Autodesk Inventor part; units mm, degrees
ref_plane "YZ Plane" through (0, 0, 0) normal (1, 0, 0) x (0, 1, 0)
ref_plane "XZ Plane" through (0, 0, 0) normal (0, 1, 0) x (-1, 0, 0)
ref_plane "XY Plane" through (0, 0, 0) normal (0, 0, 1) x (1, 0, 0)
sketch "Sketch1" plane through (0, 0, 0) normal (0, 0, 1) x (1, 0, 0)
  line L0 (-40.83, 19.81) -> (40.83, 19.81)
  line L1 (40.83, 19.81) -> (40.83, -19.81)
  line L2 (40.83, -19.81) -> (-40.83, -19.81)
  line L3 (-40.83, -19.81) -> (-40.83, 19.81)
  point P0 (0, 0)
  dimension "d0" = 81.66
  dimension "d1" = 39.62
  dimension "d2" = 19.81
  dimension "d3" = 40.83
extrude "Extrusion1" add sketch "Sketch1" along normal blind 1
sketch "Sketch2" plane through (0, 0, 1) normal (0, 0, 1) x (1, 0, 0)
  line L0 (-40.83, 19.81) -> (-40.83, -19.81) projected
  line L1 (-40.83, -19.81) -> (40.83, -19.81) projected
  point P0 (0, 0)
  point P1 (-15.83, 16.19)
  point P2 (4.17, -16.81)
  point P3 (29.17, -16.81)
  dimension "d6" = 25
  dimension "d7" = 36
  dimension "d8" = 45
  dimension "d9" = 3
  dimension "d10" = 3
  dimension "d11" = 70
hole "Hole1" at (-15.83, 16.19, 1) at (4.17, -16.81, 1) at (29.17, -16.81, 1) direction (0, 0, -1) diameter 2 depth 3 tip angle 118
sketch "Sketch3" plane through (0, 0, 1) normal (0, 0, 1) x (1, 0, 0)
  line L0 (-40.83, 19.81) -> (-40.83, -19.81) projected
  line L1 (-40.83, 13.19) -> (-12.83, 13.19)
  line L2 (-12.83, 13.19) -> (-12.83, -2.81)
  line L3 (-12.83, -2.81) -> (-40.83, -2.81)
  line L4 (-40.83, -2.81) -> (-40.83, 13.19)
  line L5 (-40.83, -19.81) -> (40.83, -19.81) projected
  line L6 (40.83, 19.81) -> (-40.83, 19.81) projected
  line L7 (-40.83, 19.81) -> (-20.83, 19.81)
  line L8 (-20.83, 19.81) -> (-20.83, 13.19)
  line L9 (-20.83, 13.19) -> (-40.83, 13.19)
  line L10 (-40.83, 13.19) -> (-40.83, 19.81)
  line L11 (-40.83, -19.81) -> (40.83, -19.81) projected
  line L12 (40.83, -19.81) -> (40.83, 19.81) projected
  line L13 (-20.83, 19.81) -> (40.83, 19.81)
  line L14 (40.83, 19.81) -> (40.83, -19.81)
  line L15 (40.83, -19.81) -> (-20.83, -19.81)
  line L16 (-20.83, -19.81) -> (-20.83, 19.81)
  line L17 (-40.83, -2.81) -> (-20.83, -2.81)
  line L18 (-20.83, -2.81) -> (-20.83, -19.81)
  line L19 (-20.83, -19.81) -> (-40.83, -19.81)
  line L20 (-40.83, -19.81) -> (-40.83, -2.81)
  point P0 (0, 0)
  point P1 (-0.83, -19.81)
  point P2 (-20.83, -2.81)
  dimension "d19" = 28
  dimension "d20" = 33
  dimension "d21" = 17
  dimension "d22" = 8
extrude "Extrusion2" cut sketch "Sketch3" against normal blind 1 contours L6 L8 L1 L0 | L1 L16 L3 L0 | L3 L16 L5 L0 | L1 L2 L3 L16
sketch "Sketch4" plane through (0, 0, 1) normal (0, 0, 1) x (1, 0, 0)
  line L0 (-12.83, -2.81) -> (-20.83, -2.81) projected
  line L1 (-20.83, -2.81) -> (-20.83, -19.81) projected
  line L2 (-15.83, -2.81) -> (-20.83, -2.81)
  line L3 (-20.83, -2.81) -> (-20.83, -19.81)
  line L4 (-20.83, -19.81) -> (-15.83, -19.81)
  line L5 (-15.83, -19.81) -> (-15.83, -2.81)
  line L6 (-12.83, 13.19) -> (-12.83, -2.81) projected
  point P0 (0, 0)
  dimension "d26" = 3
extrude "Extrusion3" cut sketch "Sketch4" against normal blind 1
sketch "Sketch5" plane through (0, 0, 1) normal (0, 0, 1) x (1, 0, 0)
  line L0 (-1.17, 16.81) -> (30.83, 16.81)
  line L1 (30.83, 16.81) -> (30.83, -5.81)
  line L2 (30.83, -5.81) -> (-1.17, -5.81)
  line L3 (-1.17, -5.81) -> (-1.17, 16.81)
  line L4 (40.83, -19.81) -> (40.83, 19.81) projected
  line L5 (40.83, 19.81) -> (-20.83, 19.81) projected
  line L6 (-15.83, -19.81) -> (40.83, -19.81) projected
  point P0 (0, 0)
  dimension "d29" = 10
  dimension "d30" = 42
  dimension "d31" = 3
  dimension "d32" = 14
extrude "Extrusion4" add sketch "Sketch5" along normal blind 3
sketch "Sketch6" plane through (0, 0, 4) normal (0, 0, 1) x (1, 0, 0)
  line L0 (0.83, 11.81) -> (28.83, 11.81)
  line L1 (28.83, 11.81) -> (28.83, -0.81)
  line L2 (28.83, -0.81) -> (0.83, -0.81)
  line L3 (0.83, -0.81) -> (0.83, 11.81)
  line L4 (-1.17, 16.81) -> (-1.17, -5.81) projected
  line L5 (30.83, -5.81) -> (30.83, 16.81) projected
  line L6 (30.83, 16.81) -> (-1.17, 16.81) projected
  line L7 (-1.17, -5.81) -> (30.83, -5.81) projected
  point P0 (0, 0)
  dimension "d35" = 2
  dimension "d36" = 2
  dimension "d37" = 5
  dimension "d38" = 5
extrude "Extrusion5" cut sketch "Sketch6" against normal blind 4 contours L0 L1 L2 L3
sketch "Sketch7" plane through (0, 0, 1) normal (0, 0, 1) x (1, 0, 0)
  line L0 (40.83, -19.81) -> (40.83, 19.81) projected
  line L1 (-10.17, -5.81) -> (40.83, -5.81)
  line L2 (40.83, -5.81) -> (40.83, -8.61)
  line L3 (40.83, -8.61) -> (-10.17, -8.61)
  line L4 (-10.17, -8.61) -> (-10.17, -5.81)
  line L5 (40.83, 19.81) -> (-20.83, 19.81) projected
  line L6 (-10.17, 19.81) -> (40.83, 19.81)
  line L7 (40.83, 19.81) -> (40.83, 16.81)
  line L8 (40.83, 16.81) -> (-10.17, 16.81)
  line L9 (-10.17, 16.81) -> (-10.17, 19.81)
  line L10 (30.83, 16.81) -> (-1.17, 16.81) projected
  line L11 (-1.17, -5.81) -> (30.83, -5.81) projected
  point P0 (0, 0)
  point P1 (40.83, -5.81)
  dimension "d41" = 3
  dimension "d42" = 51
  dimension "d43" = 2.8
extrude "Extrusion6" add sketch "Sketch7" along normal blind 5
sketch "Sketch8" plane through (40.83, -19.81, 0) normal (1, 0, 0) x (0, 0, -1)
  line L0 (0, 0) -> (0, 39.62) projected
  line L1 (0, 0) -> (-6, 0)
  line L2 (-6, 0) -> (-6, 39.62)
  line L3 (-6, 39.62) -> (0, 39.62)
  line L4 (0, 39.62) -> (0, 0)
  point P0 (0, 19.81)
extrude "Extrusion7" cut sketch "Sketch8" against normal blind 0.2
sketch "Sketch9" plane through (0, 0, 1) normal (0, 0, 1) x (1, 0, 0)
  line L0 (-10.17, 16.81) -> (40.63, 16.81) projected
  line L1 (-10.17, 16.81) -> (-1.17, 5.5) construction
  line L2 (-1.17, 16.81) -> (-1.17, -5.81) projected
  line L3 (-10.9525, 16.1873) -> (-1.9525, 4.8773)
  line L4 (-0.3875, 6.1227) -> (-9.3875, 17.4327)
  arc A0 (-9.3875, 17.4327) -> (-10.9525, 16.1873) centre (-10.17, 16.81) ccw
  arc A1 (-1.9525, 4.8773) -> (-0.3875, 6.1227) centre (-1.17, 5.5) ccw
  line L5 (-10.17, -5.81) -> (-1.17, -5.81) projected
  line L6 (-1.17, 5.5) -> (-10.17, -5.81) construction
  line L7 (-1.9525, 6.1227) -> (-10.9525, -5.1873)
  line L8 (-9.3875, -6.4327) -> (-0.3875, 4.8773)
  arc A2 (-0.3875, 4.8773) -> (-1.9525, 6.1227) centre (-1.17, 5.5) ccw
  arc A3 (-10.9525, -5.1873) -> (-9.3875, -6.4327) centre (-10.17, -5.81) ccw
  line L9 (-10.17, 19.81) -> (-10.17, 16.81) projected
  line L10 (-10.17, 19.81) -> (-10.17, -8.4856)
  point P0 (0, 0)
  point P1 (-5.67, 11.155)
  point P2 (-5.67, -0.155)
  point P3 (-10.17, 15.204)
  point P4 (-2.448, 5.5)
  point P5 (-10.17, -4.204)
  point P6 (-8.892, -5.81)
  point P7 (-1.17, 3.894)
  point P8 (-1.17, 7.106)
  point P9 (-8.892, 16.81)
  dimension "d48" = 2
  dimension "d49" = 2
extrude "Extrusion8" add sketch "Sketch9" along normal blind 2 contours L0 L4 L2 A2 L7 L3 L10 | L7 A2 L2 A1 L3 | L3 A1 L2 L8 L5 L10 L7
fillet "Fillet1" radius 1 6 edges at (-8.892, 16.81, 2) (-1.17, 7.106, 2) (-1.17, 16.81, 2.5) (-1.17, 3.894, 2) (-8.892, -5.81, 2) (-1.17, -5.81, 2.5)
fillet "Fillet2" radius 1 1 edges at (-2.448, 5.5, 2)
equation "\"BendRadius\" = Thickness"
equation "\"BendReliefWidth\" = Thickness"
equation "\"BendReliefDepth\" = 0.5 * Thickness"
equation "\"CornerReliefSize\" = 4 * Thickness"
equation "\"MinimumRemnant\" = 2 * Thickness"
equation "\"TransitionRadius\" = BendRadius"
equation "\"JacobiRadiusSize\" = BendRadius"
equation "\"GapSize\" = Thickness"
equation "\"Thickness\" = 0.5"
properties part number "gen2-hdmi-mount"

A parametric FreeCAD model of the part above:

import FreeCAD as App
import Part
import Sketcher


def edges_at(feature, points):
    """Names of the edges that pass closest to the given points."""
    edges = feature.Shape.Edges
    near = lambda p: min(range(len(edges)), key=lambda i: edges[i].distToShape(Part.Vertex(*p))[0])
    return sorted({f"Edge{near(p) + 1}" for p in points})

doc = App.newDocument("Part")
body = doc.addObject("PartDesign::Body", "Body")

sketch1 = body.newObject("Sketcher::SketchObject", "Sketch")
sketch1.AttachmentSupport = (doc.getObject("XY_Plane"), [""])
sketch1.MapMode = "FlatFace"
sketch1.addGeometry([
    Part.LineSegment(App.Vector(41, 20, 0), App.Vector(-41, 20, 0)),
    Part.LineSegment(App.Vector(-41, 20, 0), App.Vector(-41, -20, 0)),
    Part.LineSegment(App.Vector(-41, -20, 0), App.Vector(41, -20, 0)),
    Part.LineSegment(App.Vector(41, -20, 0), App.Vector(41, 20, 0)),
], False)
sketch1.addConstraint([
    Sketcher.Constraint("Coincident", 0, 2, 1, 1),
    Sketcher.Constraint("Coincident", 1, 2, 2, 1),
    Sketcher.Constraint("Coincident", 2, 2, 3, 1),
    Sketcher.Constraint("Coincident", 3, 2, 0, 1),
    Sketcher.Constraint("Horizontal", 0),
    Sketcher.Constraint("Vertical", 1),
    Sketcher.Constraint("Horizontal", 2),
    Sketcher.Constraint("Vertical", 3),
    Sketcher.Constraint("Symmetric", 0, 2, 2, 2, -1, 1),
    Sketcher.Constraint("DistanceX", 0, 2, 0, 1, 81.66),
    Sketcher.Constraint("DistanceY", 1, 2, 1, 1, 39.62),
])
pad1 = body.newObject("PartDesign::Pad", "Pad")
pad1.Profile = sketch1
pad1.Length = 1

sketch2 = body.newObject("Sketcher::SketchObject", "Sketch001")
sketch2.AttachmentSupport = (doc.getObject("XY_Plane"), [""])
sketch2.MapMode = "FlatFace"
sketch2.AttachmentOffset = App.Placement(App.Vector(0, 0, 1), App.Rotation())
sketch2.addGeometry([
    Part.Circle(App.Vector(-15.8, 16.2, 0), App.Vector(0, 0, 1), 1),
    Part.Circle(App.Vector(4.2, -16.8, 0), App.Vector(0, 0, 1), 1),
    Part.Circle(App.Vector(29.2, -16.8, 0), App.Vector(0, 0, 1), 1),
], False)
sketch2.addConstraint([
    Sketcher.Constraint("Equal", 0, 1),
    Sketcher.Constraint("Equal", 1, 2),
    Sketcher.Constraint("Horizontal", 1, 3, 2, 3),
    Sketcher.Constraint("Diameter", 0, 2.0),
    Sketcher.Constraint("DistanceX", 0, 3, 1, 3, 20.0),
    Sketcher.Constraint("DistanceY", 1, 3, 0, 3, 33.0),
    Sketcher.Constraint("DistanceX", 1, 3, 2, 3, 25.0),
    Sketcher.Constraint("DistanceX", 0, 3, -1, 1, 15.83),
    Sketcher.Constraint("DistanceY", -1, 1, 0, 3, 16.19),
])
doc.recompute()
hole = body.newObject("PartDesign::Hole", "Hole")
hole.Profile = sketch2
hole.ThreadType = "None"
hole.Diameter = 2
hole.DepthType = "Dimension"
hole.Depth = 3
hole.DrillPoint = "Angled"
hole.DrillPointAngle = 118

sketch3 = body.newObject("Sketcher::SketchObject", "Sketch002")
sketch3.AttachmentSupport = (doc.getObject("XY_Plane"), [""])
sketch3.MapMode = "FlatFace"
sketch3.AttachmentOffset = App.Placement(App.Vector(0, 0, 1), App.Rotation())
sketch3.addGeometry([
    Part.LineSegment(App.Vector(-21, 20, 0), App.Vector(-41, 20, 0)),
    Part.LineSegment(App.Vector(-41, 20, 0), App.Vector(-41, -20, 0)),
    Part.LineSegment(App.Vector(-41, -20, 0), App.Vector(-21, -20, 0)),
    Part.LineSegment(App.Vector(-21, -20, 0), App.Vector(-21, -3, 0)),
    Part.LineSegment(App.Vector(-21, -3, 0), App.Vector(-13, -3, 0)),
    Part.LineSegment(App.Vector(-13, -3, 0), App.Vector(-13, 13, 0)),
    Part.LineSegment(App.Vector(-13, 13, 0), App.Vector(-21, 13, 0)),
    Part.LineSegment(App.Vector(-21, 13, 0), App.Vector(-21, 20, 0)),
], False)
sketch3.addConstraint([
    Sketcher.Constraint("Coincident", 0, 2, 1, 1),
    Sketcher.Constraint("Coincident", 1, 2, 2, 1),
    Sketcher.Constraint("Coincident", 2, 2, 3, 1),
    Sketcher.Constraint("Coincident", 3, 2, 4, 1),
    Sketcher.Constraint("Coincident", 4, 2, 5, 1),
    Sketcher.Constraint("Coincident", 5, 2, 6, 1),
    Sketcher.Constraint("Coincident", 6, 2, 7, 1),
    Sketcher.Constraint("Coincident", 7, 2, 0, 1),
    Sketcher.Constraint("Horizontal", 0),
    Sketcher.Constraint("Vertical", 1),
    Sketcher.Constraint("Horizontal", 2),
    Sketcher.Constraint("Vertical", 3),
    Sketcher.Constraint("Horizontal", 4),
    Sketcher.Constraint("Vertical", 5),
    Sketcher.Constraint("Horizontal", 6),
    Sketcher.Constraint("Vertical", 7),
    Sketcher.Constraint("Symmetric", 2, 2, 7, 2, -1),
    Sketcher.Constraint("DistanceX", 4, 1, 4, 2, 8.0),
    Sketcher.Constraint("DistanceY", 3, 1, 3, 2, 17.0),
    Sketcher.Constraint("DistanceX", 1, 2, 4, 2, 28.0),
    Sketcher.Constraint("DistanceY", 2, 2, 5, 2, 33.0),
    Sketcher.Constraint("DistanceY", 1, 2, 1, 1, 39.62),
    Sketcher.Constraint("DistanceX", 0, 2, -1, 1, 40.83),
])
pocket1 = body.newObject("PartDesign::Pocket", "Pocket")
pocket1.Profile = sketch3
pocket1.Length = 1

sketch4 = body.newObject("Sketcher::SketchObject", "Sketch003")
sketch4.AttachmentSupport = (doc.getObject("XY_Plane"), [""])
sketch4.MapMode = "FlatFace"
sketch4.AttachmentOffset = App.Placement(App.Vector(0, 0, 1), App.Rotation())
sketch4.addGeometry([
    Part.LineSegment(App.Vector(-15.8, -19.8, 0), App.Vector(-15.8, -2.8, 0)),
    Part.LineSegment(App.Vector(-15.8, -2.8, 0), App.Vector(-20.8, -2.8, 0)),
    Part.LineSegment(App.Vector(-20.8, -2.8, 0), App.Vector(-20.8, -19.8, 0)),
    Part.LineSegment(App.Vector(-20.8, -19.8, 0), App.Vector(-15.8, -19.8, 0)),
], False)
sketch4.addConstraint([
    Sketcher.Constraint("Coincident", 0, 2, 1, 1),
    Sketcher.Constraint("Coincident", 1, 2, 2, 1),
    Sketcher.Constraint("Coincident", 2, 2, 3, 1),
    Sketcher.Constraint("Coincident", 3, 2, 0, 1),
    Sketcher.Constraint("Vertical", 0),
    Sketcher.Constraint("Horizontal", 1),
    Sketcher.Constraint("Vertical", 2),
    Sketcher.Constraint("Horizontal", 3),
    Sketcher.Constraint("DistanceX", 1, 2, 1, 1, 5.0),
    Sketcher.Constraint("DistanceY", 0, 1, 0, 2, 17.0),
    Sketcher.Constraint("DistanceX", 0, 2, -1, 1, 15.83),
    Sketcher.Constraint("DistanceY", 0, 2, -1, 1, 2.81),
])
pocket2 = body.newObject("PartDesign::Pocket", "Pocket001")
pocket2.Profile = sketch4
pocket2.Length = 1

sketch5 = body.newObject("Sketcher::SketchObject", "Sketch004")
sketch5.AttachmentSupport = (doc.getObject("XY_Plane"), [""])
sketch5.MapMode = "FlatFace"
sketch5.AttachmentOffset = App.Placement(App.Vector(0, 0, 1), App.Rotation())
sketch5.addGeometry([
    Part.LineSegment(App.Vector(31, 17, 0), App.Vector(-1, 17, 0)),
    Part.LineSegment(App.Vector(-1, 17, 0), App.Vector(-1, -6, 0)),
    Part.LineSegment(App.Vector(-1, -6, 0), App.Vector(31, -6, 0)),
    Part.LineSegment(App.Vector(31, -6, 0), App.Vector(31, 17, 0)),
], False)
sketch5.addConstraint([
    Sketcher.Constraint("Coincident", 0, 2, 1, 1),
    Sketcher.Constraint("Coincident", 1, 2, 2, 1),
    Sketcher.Constraint("Coincident", 2, 2, 3, 1),
    Sketcher.Constraint("Coincident", 3, 2, 0, 1),
    Sketcher.Constraint("Horizontal", 0),
    Sketcher.Constraint("Vertical", 1),
    Sketcher.Constraint("Horizontal", 2),
    Sketcher.Constraint("Vertical", 3),
    Sketcher.Constraint("DistanceX", 0, 2, 0, 1, 32.0),
    Sketcher.Constraint("DistanceY", 1, 2, 1, 1, 22.62),
    Sketcher.Constraint("DistanceX", 0, 2, -1, 1, 1.17),
    Sketcher.Constraint("DistanceY", -1, 1, 0, 2, 16.81),
])
pad2 = body.newObject("PartDesign::Pad", "Pad001")
pad2.Profile = sketch5
pad2.Length = 3

sketch6 = body.newObject("Sketcher::SketchObject", "Sketch005")
sketch6.AttachmentSupport = (doc.getObject("XY_Plane"), [""])
sketch6.MapMode = "FlatFace"
sketch6.AttachmentOffset = App.Placement(App.Vector(0, 0, 4), App.Rotation())
sketch6.addGeometry([
    Part.LineSegment(App.Vector(29, 12, 0), App.Vector(1, 12, 0)),
    Part.LineSegment(App.Vector(1, 12, 0), App.Vector(1, -1, 0)),
    Part.LineSegment(App.Vector(1, -1, 0), App.Vector(29, -1, 0)),
    Part.LineSegment(App.Vector(29, -1, 0), App.Vector(29, 12, 0)),
], False)
sketch6.addConstraint([
    Sketcher.Constraint("Coincident", 0, 2, 1, 1),
    Sketcher.Constraint("Coincident", 1, 2, 2, 1),
    Sketcher.Constraint("Coincident", 2, 2, 3, 1),
    Sketcher.Constraint("Coincident", 3, 2, 0, 1),
    Sketcher.Constraint("Horizontal", 0),
    Sketcher.Constraint("Vertical", 1),
    Sketcher.Constraint("Horizontal", 2),
    Sketcher.Constraint("Vertical", 3),
    Sketcher.Constraint("DistanceX", 0, 2, 0, 1, 28.0),
    Sketcher.Constraint("DistanceY", 1, 2, 1, 1, 12.62),
    Sketcher.Constraint("DistanceX", -1, 1, 0, 2, 0.83),
    Sketcher.Constraint("DistanceY", -1, 1, 0, 2, 11.81),
])
pocket3 = body.newObject("PartDesign::Pocket", "Pocket002")
pocket3.Profile = sketch6
pocket3.Length = 4

sketch7 = body.newObject("Sketcher::SketchObject", "Sketch006")
sketch7.AttachmentSupport = (doc.getObject("XY_Plane"), [""])
sketch7.MapMode = "FlatFace"
sketch7.AttachmentOffset = App.Placement(App.Vector(0, 0, 1), App.Rotation())
sketch7.addGeometry([
    Part.LineSegment(App.Vector(-10.2, -8.6, 0), App.Vector(40.8, -8.6, 0)),
    Part.LineSegment(App.Vector(40.8, -8.6, 0), App.Vector(40.8, -5.8, 0)),
    Part.LineSegment(App.Vector(40.8, -5.8, 0), App.Vector(-10.2, -5.8, 0)),
    Part.LineSegment(App.Vector(-10.2, -5.8, 0), App.Vector(-10.2, -8.6, 0)),
    Part.LineSegment(App.Vector(-10.2, 16.8, 0), App.Vector(40.8, 16.8, 0)),
    Part.LineSegment(App.Vector(40.8, 16.8, 0), App.Vector(40.8, 19.8, 0)),
    Part.LineSegment(App.Vector(40.8, 19.8, 0), App.Vector(-10.2, 19.8, 0)),
    Part.LineSegment(App.Vector(-10.2, 19.8, 0), App.Vector(-10.2, 16.8, 0)),
], False)
sketch7.addConstraint([
    Sketcher.Constraint("Coincident", 0, 2, 1, 1),
    Sketcher.Constraint("Coincident", 1, 2, 2, 1),
    Sketcher.Constraint("Coincident", 2, 2, 3, 1),
    Sketcher.Constraint("Coincident", 3, 2, 0, 1),
    Sketcher.Constraint("Coincident", 4, 2, 5, 1),
    Sketcher.Constraint("Coincident", 5, 2, 6, 1),
    Sketcher.Constraint("Coincident", 6, 2, 7, 1),
    Sketcher.Constraint("Coincident", 7, 2, 4, 1),
    Sketcher.Constraint("Horizontal", 0),
    Sketcher.Constraint("Vertical", 1),
    Sketcher.Constraint("Horizontal", 2),
    Sketcher.Constraint("Vertical", 3),
    Sketcher.Constraint("Horizontal", 4),
    Sketcher.Constraint("Vertical", 5),
    Sketcher.Constraint("Horizontal", 6),
    Sketcher.Constraint("Vertical", 7),
    Sketcher.Constraint("Vertical", 1, 2, 4, 2),
    Sketcher.Constraint("Vertical", 3, 2, 6, 2),
    Sketcher.Constraint("DistanceX", 0, 1, 0, 2, 51.0),
    Sketcher.Constraint("DistanceY", 5, 1, 5, 2, 3.0),
    Sketcher.Constraint("DistanceY", 1, 1, 1, 2, 2.8),
    Sketcher.Constraint("DistanceX", -1, 1, 0, 2, 40.83),
    Sketcher.Constraint("DistanceY", 0, 2, -1, 1, 8.61),
    Sketcher.Constraint("DistanceY", -1, 1, 4, 2, 16.81),
])
pad3 = body.newObject("PartDesign::Pad", "Pad002")
pad3.Profile = sketch7
pad3.Length = 5

sketch8 = body.newObject("Sketcher::SketchObject", "Sketch007")
sketch8.AttachmentSupport = (doc.getObject("YZ_Plane"), [""])
sketch8.MapMode = "FlatFace"
sketch8.AttachmentOffset = App.Placement(App.Vector(0, 0, 40.83), App.Rotation())
sketch8.addGeometry([
    Part.LineSegment(App.Vector(-20, 6, 0), App.Vector(-20, 0, 0)),
    Part.LineSegment(App.Vector(-20, 0, 0), App.Vector(20, 0, 0)),
    Part.LineSegment(App.Vector(20, 0, 0), App.Vector(20, 6, 0)),
    Part.LineSegment(App.Vector(20, 6, 0), App.Vector(-20, 6, 0)),
], False)
sketch8.addConstraint([
    Sketcher.Constraint("Coincident", 0, 2, 1, 1),
    Sketcher.Constraint("Coincident", 1, 2, 2, 1),
    Sketcher.Constraint("Coincident", 2, 2, 3, 1),
    Sketcher.Constraint("Coincident", 3, 2, 0, 1),
    Sketcher.Constraint("Vertical", 0),
    Sketcher.Constraint("Horizontal", 1),
    Sketcher.Constraint("Vertical", 2),
    Sketcher.Constraint("Horizontal", 3),
    Sketcher.Constraint("Symmetric", 0, 2, 1, 2, -1, 1),
    Sketcher.Constraint("DistanceY", 0, 2, 0, 1, 6.0),
    Sketcher.Constraint("DistanceX", 1, 1, 1, 2, 39.62),
])
pocket4 = body.newObject("PartDesign::Pocket", "Pocket003")
pocket4.Profile = sketch8
pocket4.Length = 0.2

sketch9 = body.newObject("Sketcher::SketchObject", "Sketch008")
sketch9.AttachmentSupport = (doc.getObject("XY_Plane"), [""])
sketch9.MapMode = "FlatFace"
sketch9.AttachmentOffset = App.Placement(App.Vector(0, 0, 1), App.Rotation())
sketch9.addGeometry([
    Part.LineSegment(App.Vector(-8.9, 16.8, 0), App.Vector(-10.2, 16.8, 0)),
    Part.LineSegment(App.Vector(-10.2, 16.8, 0), App.Vector(-10.2, 15.2, 0)),
    Part.LineSegment(App.Vector(-10.2, 15.2, 0), App.Vector(-2.4, 5.5, 0)),
    Part.LineSegment(App.Vector(-2.4, 5.5, 0), App.Vector(-10.2, -4.2, 0)),
    Part.LineSegment(App.Vector(-10.2, -4.2, 0), App.Vector(-10.2, -5.8, 0)),
    Part.LineSegment(App.Vector(-10.2, -5.8, 0), App.Vector(-8.9, -5.8, 0)),
    Part.LineSegment(App.Vector(-8.9, -5.8, 0), App.Vector(-1.2, 3.9, 0)),
    Part.LineSegment(App.Vector(-1.2, 3.9, 0), App.Vector(-1.2, 7.1, 0)),
    Part.LineSegment(App.Vector(-1.2, 7.1, 0), App.Vector(-8.9, 16.8, 0)),
], False)
sketch9.addConstraint([
    Sketcher.Constraint("Coincident", 0, 2, 1, 1),
    Sketcher.Constraint("Coincident", 1, 2, 2, 1),
    Sketcher.Constraint("Coincident", 2, 2, 3, 1),
    Sketcher.Constraint("Coincident", 3, 2, 4, 1),
    Sketcher.Constraint("Coincident", 4, 2, 5, 1),
    Sketcher.Constraint("Coincident", 5, 2, 6, 1),
    Sketcher.Constraint("Coincident", 6, 2, 7, 1),
    Sketcher.Constraint("Coincident", 7, 2, 8, 1),
    Sketcher.Constraint("Coincident", 8, 2, 0, 1),
    Sketcher.Constraint("Horizontal", 0),
    Sketcher.Constraint("Vertical", 1),
    Sketcher.Constraint("Vertical", 4),
    Sketcher.Constraint("Horizontal", 5),
    Sketcher.Constraint("Vertical", 7),
    Sketcher.Constraint("Parallel", 3, 6),
    Sketcher.Constraint("Parallel", 2, 8),
    Sketcher.Constraint("Vertical", 1, 2, 3, 2),
    Sketcher.Constraint("Vertical", 5, 2, 8, 2),
    Sketcher.Constraint("Equal", 1, 4),
    Sketcher.Constraint("Equal", 2, 3),
    Sketcher.Constraint("Equal", 3, 6),
    Sketcher.Constraint("DistanceX", 3, 2, 6, 2, 9.0),
    Sketcher.Constraint("DistanceY", -1, 1, 2, 2, 5.5),
    Sketcher.Constraint("DistanceX", 0, 2, 0, 1, 1.278),
    Sketcher.Constraint("DistanceY", 1, 2, 1, 1, 1.606),
    Sketcher.Constraint("DistanceX", 0, 2, -1, 1, 10.17),
    Sketcher.Constraint("DistanceY", -1, 1, 0, 2, 16.81),
])
pad4 = body.newObject("PartDesign::Pad", "Pad003")
pad4.Profile = sketch9
pad4.Length = 2
doc.recompute()

fillet = body.newObject("PartDesign::Fillet", "Fillet")
fillet.Base = (pad4, edges_at(pad4, [
    (-8.892, 16.81, 2),
    (-1.17, 7.106, 2),
    (-1.17, 16.81, 2.5),
    (-1.17, 3.894, 2),
    (-8.892, -5.81, 2),
    (-1.17, -5.81, 2.5),
]))
fillet.Radius = 1
doc.recompute()

fillet2 = body.newObject("PartDesign::Fillet", "Fillet001")
fillet2.Base = (fillet, edges_at(fillet, [(-2.448, 5.5, 2)]))
fillet2.Radius = 1

doc.recompute()
